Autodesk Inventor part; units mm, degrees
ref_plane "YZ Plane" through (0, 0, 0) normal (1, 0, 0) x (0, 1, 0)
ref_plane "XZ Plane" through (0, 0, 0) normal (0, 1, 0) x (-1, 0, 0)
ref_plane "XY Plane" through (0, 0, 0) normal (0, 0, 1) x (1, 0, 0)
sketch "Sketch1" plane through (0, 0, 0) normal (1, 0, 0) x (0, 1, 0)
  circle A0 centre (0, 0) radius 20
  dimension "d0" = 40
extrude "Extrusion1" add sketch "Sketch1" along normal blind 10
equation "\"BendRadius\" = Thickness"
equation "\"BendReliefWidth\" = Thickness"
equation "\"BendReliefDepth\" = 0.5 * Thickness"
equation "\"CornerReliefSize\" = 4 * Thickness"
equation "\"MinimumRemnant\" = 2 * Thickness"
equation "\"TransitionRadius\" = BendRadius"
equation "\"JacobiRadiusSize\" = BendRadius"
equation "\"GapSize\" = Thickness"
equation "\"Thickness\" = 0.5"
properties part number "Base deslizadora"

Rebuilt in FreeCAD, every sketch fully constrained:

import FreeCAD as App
import Part
import Sketcher
from FreeCAD import Vector
Q = App.Units.Quantity

doc = App.newDocument("Part")
params = doc.addObject("Spreadsheet::Sheet", "Params")
for row, (alias, value) in enumerate([
    ("sketch1_diameter", "40 mm"),
    ("pad1_length", "10 mm"),
], start=1):
    params.set(f"A{row}", alias)
    params.set(f"B{row}", "=" + value)
    params.setAlias(f"B{row}", alias)

body = doc.addObject("PartDesign::Body", "Body")

sketch1 = body.newObject("Sketcher::SketchObject", "Sketch")
sketch1.AttachmentSupport = (doc.getObject("YZ_Plane"), [""])
sketch1.MapMode = "FlatFace"
sketch1.addGeometry(Part.Circle(Vector(0, 0, 0), Vector(0, 0, 1), 20), False)
sketch1.addConstraint(Sketcher.Constraint("Coincident", 0, 3, -1, 1))
sketch1.addConstraint(Sketcher.Constraint("Diameter", 0, Q("40 mm")))
sketch1.setExpression("Constraints[1]", "Params.sketch1_diameter")
pad1 = body.newObject("PartDesign::Pad", "Pad")
pad1.Profile = sketch1
pad1.setExpression("Length", "Params.pad1_length")

doc.recompute()
